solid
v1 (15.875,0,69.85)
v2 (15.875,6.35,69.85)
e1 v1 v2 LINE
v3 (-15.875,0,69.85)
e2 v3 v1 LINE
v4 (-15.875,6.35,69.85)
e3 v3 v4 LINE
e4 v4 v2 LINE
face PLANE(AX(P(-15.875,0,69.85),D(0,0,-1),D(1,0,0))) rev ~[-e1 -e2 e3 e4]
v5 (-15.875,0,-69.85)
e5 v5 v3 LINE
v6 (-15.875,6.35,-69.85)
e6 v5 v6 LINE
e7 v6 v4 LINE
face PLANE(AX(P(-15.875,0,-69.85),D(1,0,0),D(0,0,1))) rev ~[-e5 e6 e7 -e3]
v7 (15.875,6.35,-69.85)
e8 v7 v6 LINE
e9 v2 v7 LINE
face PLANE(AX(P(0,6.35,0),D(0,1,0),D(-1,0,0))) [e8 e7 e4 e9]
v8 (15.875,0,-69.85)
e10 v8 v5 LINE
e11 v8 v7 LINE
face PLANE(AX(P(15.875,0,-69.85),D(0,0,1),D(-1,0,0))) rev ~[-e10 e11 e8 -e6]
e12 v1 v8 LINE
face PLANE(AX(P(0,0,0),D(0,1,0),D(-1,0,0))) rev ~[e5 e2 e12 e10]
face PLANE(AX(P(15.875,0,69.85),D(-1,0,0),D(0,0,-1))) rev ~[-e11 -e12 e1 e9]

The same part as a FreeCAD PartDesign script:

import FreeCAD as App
import Part
import Sketcher
Q = App.Units.Quantity

doc = App.newDocument("Part")
params = doc.addObject("Spreadsheet::Sheet", "Params")
for row, (alias, value) in enumerate([
    ("sketch1_height", "5.5 in"),
    ("sketch1_width", "1.25 in"),
    ("pad1_length", "0.25 in"),
], start=1):
    params.set(f"A{row}", alias)
    params.set(f"B{row}", "=" + value)
    params.setAlias(f"B{row}", alias)

body = doc.addObject("PartDesign::Body", "Body")

sketch1 = doc.addObject("Sketcher::SketchObject", "Sketch")
body.addObject(sketch1)
sketch1.AttachmentSupport = (doc.XZ_Plane, [""])
sketch1.MapMode = "FlatFace"
sketch1.addGeometry([
    Part.LineSegment(App.Vector(16, 70, 0), App.Vector(16, -70, 0)),
    Part.LineSegment(App.Vector(16, -70, 0), App.Vector(-16, -70, 0)),
    Part.LineSegment(App.Vector(-16, -70, 0), App.Vector(-16, 70, 0)),
    Part.LineSegment(App.Vector(-16, 70, 0), App.Vector(16, 70, 0)),
], False)
sketch1.addConstraint([
    Sketcher.Constraint("Coincident", 0, 2, 1, 1),
    Sketcher.Constraint("Coincident", 1, 2, 2, 1),
    Sketcher.Constraint("Coincident", 2, 2, 3, 1),
    Sketcher.Constraint("Coincident", 3, 2, 0, 1),
    Sketcher.Constraint("Vertical", 0),
    Sketcher.Constraint("Horizontal", 1),
    Sketcher.Constraint("Vertical", 2),
    Sketcher.Constraint("Horizontal", 3),
    Sketcher.Constraint("Symmetric", 0, 2, 2, 2, -1, 1),
    Sketcher.Constraint("DistanceY", 0, 2, 0, 1, Q("5.5 in")),
    Sketcher.Constraint("DistanceX", 1, 2, 1, 1, Q("1.25 in")),
])
sketch1.setExpression("Constraints[9]", "Params.sketch1_height")
sketch1.setExpression("Constraints[10]", "Params.sketch1_width")
pad1 = doc.addObject("PartDesign::Pad", "Pad")
body.addObject(pad1)
pad1.Profile = sketch1
pad1.setExpression("Length", "Params.pad1_length")
pad1.Reversed = True

doc.recompute()
